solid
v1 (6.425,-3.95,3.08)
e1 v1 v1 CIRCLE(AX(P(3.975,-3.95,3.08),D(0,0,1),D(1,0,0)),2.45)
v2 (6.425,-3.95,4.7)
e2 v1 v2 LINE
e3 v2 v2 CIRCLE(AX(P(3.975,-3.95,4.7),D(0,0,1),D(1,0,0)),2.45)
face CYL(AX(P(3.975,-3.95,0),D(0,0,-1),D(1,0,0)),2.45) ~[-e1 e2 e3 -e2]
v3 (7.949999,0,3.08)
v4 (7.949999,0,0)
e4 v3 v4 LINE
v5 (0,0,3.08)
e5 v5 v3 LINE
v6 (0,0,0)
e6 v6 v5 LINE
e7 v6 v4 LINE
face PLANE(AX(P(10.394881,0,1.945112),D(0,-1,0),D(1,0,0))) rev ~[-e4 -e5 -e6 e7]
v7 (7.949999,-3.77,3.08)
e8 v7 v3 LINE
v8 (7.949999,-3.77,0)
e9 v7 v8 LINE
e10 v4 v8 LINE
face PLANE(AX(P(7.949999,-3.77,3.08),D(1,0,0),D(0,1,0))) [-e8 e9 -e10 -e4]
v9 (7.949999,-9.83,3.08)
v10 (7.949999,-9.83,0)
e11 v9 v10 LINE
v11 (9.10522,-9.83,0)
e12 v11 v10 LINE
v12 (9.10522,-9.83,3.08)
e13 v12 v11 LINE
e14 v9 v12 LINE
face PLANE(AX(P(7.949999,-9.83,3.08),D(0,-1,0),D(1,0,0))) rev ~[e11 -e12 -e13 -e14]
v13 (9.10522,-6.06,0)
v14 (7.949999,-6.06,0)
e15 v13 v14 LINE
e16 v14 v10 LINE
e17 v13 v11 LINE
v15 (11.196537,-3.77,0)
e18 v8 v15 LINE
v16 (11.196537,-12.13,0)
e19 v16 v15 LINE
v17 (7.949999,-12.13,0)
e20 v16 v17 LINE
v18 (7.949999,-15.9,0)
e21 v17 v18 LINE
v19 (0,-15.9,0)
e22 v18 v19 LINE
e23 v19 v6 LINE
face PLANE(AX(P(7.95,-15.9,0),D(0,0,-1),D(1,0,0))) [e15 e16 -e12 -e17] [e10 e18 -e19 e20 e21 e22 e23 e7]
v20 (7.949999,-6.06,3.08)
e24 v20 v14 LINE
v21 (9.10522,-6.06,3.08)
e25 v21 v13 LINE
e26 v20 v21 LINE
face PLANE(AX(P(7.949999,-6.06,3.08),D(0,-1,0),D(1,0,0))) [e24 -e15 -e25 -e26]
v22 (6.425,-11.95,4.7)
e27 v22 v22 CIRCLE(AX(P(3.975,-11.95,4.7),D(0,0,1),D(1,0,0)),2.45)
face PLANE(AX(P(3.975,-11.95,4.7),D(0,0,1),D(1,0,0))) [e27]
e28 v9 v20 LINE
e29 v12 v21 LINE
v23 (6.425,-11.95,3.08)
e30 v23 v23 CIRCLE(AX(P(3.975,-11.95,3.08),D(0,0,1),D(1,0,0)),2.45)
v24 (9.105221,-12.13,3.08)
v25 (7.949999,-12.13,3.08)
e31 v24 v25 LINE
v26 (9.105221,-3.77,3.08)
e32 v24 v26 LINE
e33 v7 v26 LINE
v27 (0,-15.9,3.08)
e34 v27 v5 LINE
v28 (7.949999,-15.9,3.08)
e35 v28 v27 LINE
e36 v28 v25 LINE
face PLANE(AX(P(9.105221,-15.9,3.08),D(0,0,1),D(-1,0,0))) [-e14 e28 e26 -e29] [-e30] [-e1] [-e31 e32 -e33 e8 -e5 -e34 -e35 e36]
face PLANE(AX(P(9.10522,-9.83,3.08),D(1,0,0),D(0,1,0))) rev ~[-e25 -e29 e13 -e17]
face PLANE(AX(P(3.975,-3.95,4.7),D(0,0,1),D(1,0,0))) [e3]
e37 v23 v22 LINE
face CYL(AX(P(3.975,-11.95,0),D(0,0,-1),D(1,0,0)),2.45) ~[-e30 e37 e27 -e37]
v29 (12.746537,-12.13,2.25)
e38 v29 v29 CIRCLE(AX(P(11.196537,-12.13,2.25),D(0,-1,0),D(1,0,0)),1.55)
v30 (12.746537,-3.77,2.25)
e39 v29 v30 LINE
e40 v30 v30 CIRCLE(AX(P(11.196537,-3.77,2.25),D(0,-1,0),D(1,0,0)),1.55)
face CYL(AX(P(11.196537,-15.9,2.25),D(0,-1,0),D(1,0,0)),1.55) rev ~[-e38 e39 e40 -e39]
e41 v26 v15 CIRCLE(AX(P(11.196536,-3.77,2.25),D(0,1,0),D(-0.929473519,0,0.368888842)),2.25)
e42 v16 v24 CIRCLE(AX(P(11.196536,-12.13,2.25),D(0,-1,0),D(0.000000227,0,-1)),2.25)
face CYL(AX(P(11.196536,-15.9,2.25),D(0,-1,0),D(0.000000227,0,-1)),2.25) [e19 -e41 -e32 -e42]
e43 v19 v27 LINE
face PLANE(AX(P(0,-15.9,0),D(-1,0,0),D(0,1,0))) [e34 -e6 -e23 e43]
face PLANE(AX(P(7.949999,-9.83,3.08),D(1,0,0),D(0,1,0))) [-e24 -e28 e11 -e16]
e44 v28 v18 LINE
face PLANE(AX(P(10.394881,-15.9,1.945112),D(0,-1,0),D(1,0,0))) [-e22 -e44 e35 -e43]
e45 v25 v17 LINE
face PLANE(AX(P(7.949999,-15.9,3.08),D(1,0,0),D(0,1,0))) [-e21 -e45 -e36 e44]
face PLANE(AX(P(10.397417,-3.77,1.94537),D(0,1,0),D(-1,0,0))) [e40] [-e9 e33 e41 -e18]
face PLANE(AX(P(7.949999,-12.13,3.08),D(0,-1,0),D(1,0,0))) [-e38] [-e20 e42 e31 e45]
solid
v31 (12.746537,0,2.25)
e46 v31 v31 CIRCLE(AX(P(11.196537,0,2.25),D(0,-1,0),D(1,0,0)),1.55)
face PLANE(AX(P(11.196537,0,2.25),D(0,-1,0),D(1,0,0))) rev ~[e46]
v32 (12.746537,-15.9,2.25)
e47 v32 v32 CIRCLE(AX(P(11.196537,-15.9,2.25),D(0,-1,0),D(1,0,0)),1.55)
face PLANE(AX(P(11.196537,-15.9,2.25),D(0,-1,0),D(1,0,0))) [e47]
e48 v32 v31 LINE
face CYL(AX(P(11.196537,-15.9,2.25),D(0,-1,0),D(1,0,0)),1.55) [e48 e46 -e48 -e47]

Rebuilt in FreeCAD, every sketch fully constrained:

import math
import FreeCAD as App
import Part
import Sketcher
from FreeCAD import Vector
Q = App.Units.Quantity


def add_polygon(sketch, points):
    """Adds a closed chain of lines whose ends are joined by coincident constraints."""
    first, n = sketch.GeometryCount, len(points)
    for a, b in zip(points, points[1:] + points[:1]):
        sketch.addGeometry(Part.LineSegment(App.Vector(*a, 0), App.Vector(*b, 0)), False)
    for i in range(n):
        sketch.addConstraint(Sketcher.Constraint("Coincident", first + i, 2, first + (i + 1) % n, 1))

doc = App.newDocument("Part")
body = doc.addObject("PartDesign::Body", "Body")

# Sketch on XY plane
sketch1 = body.newObject("Sketcher::SketchObject", "Sketch")
sketch1.AttachmentSupport = (doc.getObject("XY_Plane"), [""])
sketch1.MapMode = "FlatFace"
add_polygon(sketch1, [(0, 0), (0, -15.9), (8, -15.9), (8, 0)])  # lines 0-3
sketch1.addGeometry(Part.Circle(Vector(4, -11.9, 0), Vector(0, 0, 1), 2.5), False)  # 4
sketch1.addGeometry(Part.Circle(Vector(4, -4, 0), Vector(0, 0, 1), 2.5), False)  # 5
sketch1.addConstraint(Sketcher.Constraint("Vertical", 0))
sketch1.addConstraint(Sketcher.Constraint("Horizontal", 1))
sketch1.addConstraint(Sketcher.Constraint("Vertical", 2))
sketch1.addConstraint(Sketcher.Constraint("Horizontal", 3))
sketch1.addConstraint(Sketcher.Constraint("Coincident", 3, 2, -1, 1))
sketch1.addConstraint(Sketcher.Constraint("Equal", 4, 5))
sketch1.addConstraint(Sketcher.Constraint("Vertical", 4, 3, 5, 3))
sketch1.addConstraint(Sketcher.Constraint("Diameter", 4, Q("4.9 mm")))
sketch1.addConstraint(Sketcher.Constraint("DistanceY", 0, 2, 0, 1, Q("15.9 mm")))
sketch1.addConstraint(Sketcher.Constraint("DistanceY", 4, 3, 5, 3, Q("8 mm")))
sketch1.addConstraint(Sketcher.Constraint("DistanceX", 1, 1, 1, 2, Q("7.95 mm")))
sketch1.addConstraint(Sketcher.Constraint("DistanceY", 4, 3, -1, 1, Q("11.95 mm")))
sketch1.addConstraint(Sketcher.Constraint("DistanceX", -1, 1, 4, 3, Q("3.975 mm")))
pad1 = body.newObject("PartDesign::Pad", "Pad")
pad1.Profile = sketch1
pad1.Length = 3.08

# Sketch on XY plane
sketch2 = body.newObject("Sketcher::SketchObject", "Sketch001")
sketch2.AttachmentSupport = (doc.getObject("XY_Plane"), [""])
sketch2.MapMode = "FlatFace"
sketch2.addGeometry(Part.Circle(Vector(4, -11.9, 0), Vector(0, 0, 1), 2.5), False)
sketch2.addGeometry(Part.Circle(Vector(4, -4, 0), Vector(0, 0, 1), 2.5), False)
sketch2.addConstraint(Sketcher.Constraint("Equal", 0, 1))
sketch2.addConstraint(Sketcher.Constraint("Vertical", 0, 3, 1, 3))
sketch2.addConstraint(Sketcher.Constraint("Diameter", 0, Q("4.9 mm")))
sketch2.addConstraint(Sketcher.Constraint("DistanceY", 0, 3, 1, 3, Q("8 mm")))
sketch2.addConstraint(Sketcher.Constraint("DistanceY", 0, 3, -1, 1, Q("11.95 mm")))
sketch2.addConstraint(Sketcher.Constraint("DistanceX", -1, 1, 0, 3, Q("3.975 mm")))
pad2 = body.newObject("PartDesign::Pad", "Pad001")
pad2.Profile = sketch2
pad2.Length = 4.7

# Sketch on XZ plane
sketch3 = body.newObject("Sketcher::SketchObject", "Sketch002")
sketch3.AttachmentSupport = (doc.getObject("XZ_Plane"), [""])
sketch3.MapMode = "FlatFace"
sketch3.AttachmentOffset = App.Placement(Vector(0, 0, 15.9), App.Rotation())
sketch3.addGeometry(Part.LineSegment(Vector(8, 0, 0), Vector(11.2, 0, 0)), False)
sketch3.addGeometry(Part.ArcOfCircle(Part.Circle(Vector(11.2, 2.3, 0), Vector(0, 0, 1), 2.3), math.radians(-90), math.radians(158)), False)
sketch3.addGeometry(Part.LineSegment(Vector(9.1, 3.1, 0), Vector(8, 3.1, 0)), False)
sketch3.addGeometry(Part.LineSegment(Vector(8, 3.1, 0), Vector(8, 0, 0)), False)
sketch3.addGeometry(Part.Circle(Vector(11.2, 2.2, 0), Vector(0, 0, 1), 1.6), False)
sketch3.addConstraint(Sketcher.Constraint("Tangent", 0, 2, 1, 1))
sketch3.addConstraint(Sketcher.Constraint("Coincident", 1, 2, 2, 1))
sketch3.addConstraint(Sketcher.Constraint("Coincident", 2, 2, 3, 1))
sketch3.addConstraint(Sketcher.Constraint("Coincident", 3, 2, 0, 1))
sketch3.addConstraint(Sketcher.Constraint("Horizontal", 0))
sketch3.addConstraint(Sketcher.Constraint("Horizontal", 2))
sketch3.addConstraint(Sketcher.Constraint("Vertical", 3))
sketch3.addConstraint(Sketcher.Constraint("Coincident", 4, 3, 1, 3))
sketch3.addConstraint(Sketcher.Constraint("PointOnObject", 0, 2, -1))
sketch3.addConstraint(Sketcher.Constraint("Diameter", 4, Q("3.1 mm")))
sketch3.addConstraint(Sketcher.Constraint("Radius", 1, Q("2.25 mm")))
sketch3.addConstraint(Sketcher.Constraint("DistanceY", 3, 2, 3, 1, Q("3.08 mm")))
sketch3.addConstraint(Sketcher.Constraint("DistanceX", -1, 1, 2, 2, Q("7.95 mm")))
sketch3.addConstraint(Sketcher.Constraint("DistanceX", 2, 2, 2, 1, Q("1.155221 mm")))
pad3 = body.newObject("PartDesign::Pad", "Pad002")
pad3.Profile = sketch3
pad3.Length = 15.9
pad3.Reversed = True

# Sketch on XY plane
sketch4 = body.newObject("Sketcher::SketchObject", "Sketch003")
sketch4.AttachmentSupport = (doc.getObject("XY_Plane"), [""])
sketch4.MapMode = "FlatFace"
sketch4.AttachmentOffset = App.Placement(Vector(0, 0, 3.08), App.Rotation())
add_polygon(sketch4, [(7.9, -12.1), (7.9, -15.9), (9.1, -15.9), (9.1, -12.1)])  # lines 0-3
add_polygon(sketch4, [(7.9, -6.1), (7.9, -9.8), (9.1, -9.8), (9.1, -6.1)])  # lines 4-7
add_polygon(sketch4, [(7.9, 0), (7.9, -3.8), (9.1, -3.8), (9.1, 0)])  # lines 8-11
sketch4.addConstraint(Sketcher.Constraint("Vertical", 0))
sketch4.addConstraint(Sketcher.Constraint("Horizontal", 1))
sketch4.addConstraint(Sketcher.Constraint("Vertical", 2))
sketch4.addConstraint(Sketcher.Constraint("Horizontal", 3))
sketch4.addConstraint(Sketcher.Constraint("Vertical", 4))
sketch4.addConstraint(Sketcher.Constraint("Horizontal", 5))
sketch4.addConstraint(Sketcher.Constraint("Vertical", 6))
sketch4.addConstraint(Sketcher.Constraint("Horizontal", 7))
sketch4.addConstraint(Sketcher.Constraint("Vertical", 8))
sketch4.addConstraint(Sketcher.Constraint("Horizontal", 9))
sketch4.addConstraint(Sketcher.Constraint("Vertical", 10))
sketch4.addConstraint(Sketcher.Constraint("Horizontal", 11))
sketch4.addConstraint(Sketcher.Constraint("PointOnObject", 10, 2, -1))
sketch4.addConstraint(Sketcher.Constraint("Vertical", 3, 2, 4, 2))
sketch4.addConstraint(Sketcher.Constraint("Vertical", 2, 2, 5, 2))
sketch4.addConstraint(Sketcher.Constraint("Vertical", 7, 2, 8, 2))
sketch4.addConstraint(Sketcher.Constraint("Vertical", 6, 2, 9, 2))
sketch4.addConstraint(Sketcher.Constraint("Equal", 2, 4))
sketch4.addConstraint(Sketcher.Constraint("Equal", 6, 8))
sketch4.addConstraint(Sketcher.Constraint("DistanceY", 0, 2, 0, 1, Q("3.77 mm")))
sketch4.addConstraint(Sketcher.Constraint("DistanceY", 0, 2, -1, 1, Q("15.9 mm")))
sketch4.addConstraint(Sketcher.Constraint("DistanceY", 3, 2, 4, 2, Q("2.3 mm")))
sketch4.addConstraint(Sketcher.Constraint("DistanceX", -1, 1, 0, 2, Q("7.949999 mm")))
sketch4.addConstraint(Sketcher.Constraint("DistanceX", 1, 1, 1, 2, Q("1.155221 mm")))
pocket1 = body.newObject("PartDesign::Pocket", "Pocket")
pocket1.Profile = sketch4
pocket1.Length = 25

# Sketch on XZ plane
sketch5 = body.newObject("Sketcher::SketchObject", "Sketch004")
sketch5.AttachmentSupport = (doc.getObject("XZ_Plane"), [""])
sketch5.MapMode = "FlatFace"
sketch5.AttachmentOffset = App.Placement(Vector(0, 0, 15.9), App.Rotation())
sketch5.addGeometry(Part.LineSegment(Vector(8, 0, 0), Vector(11.2, 0, 0)), False)
sketch5.addGeometry(Part.ArcOfCircle(Part.Circle(Vector(11.2, 2.3, 0), Vector(0, 0, 1), 2.3), math.radians(-90), math.radians(158)), False)
sketch5.addGeometry(Part.LineSegment(Vector(9.1, 3.1, 0), Vector(8, 3.1, 0)), False)
sketch5.addGeometry(Part.LineSegment(Vector(8, 3.1, 0), Vector(8, 0, 0)), False)
sketch5.addGeometry(Part.Circle(Vector(11.2, 2.2, 0), Vector(0, 0, 1), 1.6), False)
sketch5.addConstraint(Sketcher.Constraint("Tangent", 0, 2, 1, 1))
sketch5.addConstraint(Sketcher.Constraint("Coincident", 1, 2, 2, 1))
sketch5.addConstraint(Sketcher.Constraint("Coincident", 2, 2, 3, 1))
sketch5.addConstraint(Sketcher.Constraint("Coincident", 3, 2, 0, 1))
sketch5.addConstraint(Sketcher.Constraint("Horizontal", 0))
sketch5.addConstraint(Sketcher.Constraint("Horizontal", 2))
sketch5.addConstraint(Sketcher.Constraint("Vertical", 3))
sketch5.addConstraint(Sketcher.Constraint("Coincident", 4, 3, 1, 3))
sketch5.addConstraint(Sketcher.Constraint("PointOnObject", 0, 2, -1))
sketch5.addConstraint(Sketcher.Constraint("Diameter", 4, Q("3.1 mm")))
sketch5.addConstraint(Sketcher.Constraint("Radius", 1, Q("2.25 mm")))
sketch5.addConstraint(Sketcher.Constraint("DistanceY", 3, 2, 3, 1, Q("3.08 mm")))
sketch5.addConstraint(Sketcher.Constraint("DistanceX", 2, 2, 2, 1, Q("1.155 mm")))
sketch5.addConstraint(Sketcher.Constraint("DistanceX", -1, 1, 1, 2, Q("9.105221 mm")))
pocket2 = body.newObject("PartDesign::Pocket", "Pocket001")
pocket2.Profile = sketch5
pocket2.Length = 3.77

# Sketch on XZ plane
sketch6 = body.newObject("Sketcher::SketchObject", "Sketch005")
sketch6.AttachmentSupport = (doc.getObject("XZ_Plane"), [""])
sketch6.MapMode = "FlatFace"
sketch6.addGeometry(Part.LineSegment(Vector(8, 3.1, 0), Vector(9.1, 3.1, 0)), False)
sketch6.addGeometry(Part.ArcOfCircle(Part.Circle(Vector(11.2, 2.3, 0), Vector(0, 0, 1), 2.3), math.radians(-90), math.radians(158)), False)
sketch6.addGeometry(Part.LineSegment(Vector(11.2, 0, 0), Vector(8, 0, 0)), False)
sketch6.addGeometry(Part.LineSegment(Vector(8, 0, 0), Vector(8, 3.1, 0)), False)
sketch6.addGeometry(Part.Circle(Vector(11.2, 2.2, 0), Vector(0, 0, 1), 1.6), False)
sketch6.addConstraint(Sketcher.Constraint("Coincident", 0, 2, 1, 2))
sketch6.addConstraint(Sketcher.Constraint("Tangent", 1, 1, 2, 1))
sketch6.addConstraint(Sketcher.Constraint("Coincident", 2, 2, 3, 1))
sketch6.addConstraint(Sketcher.Constraint("Coincident", 3, 2, 0, 1))
sketch6.addConstraint(Sketcher.Constraint("Horizontal", 0))
sketch6.addConstraint(Sketcher.Constraint("Horizontal", 2))
sketch6.addConstraint(Sketcher.Constraint("Vertical", 3))
sketch6.addConstraint(Sketcher.Constraint("Coincident", 4, 3, 1, 3))
sketch6.addConstraint(Sketcher.Constraint("PointOnObject", 1, 1, -1))
sketch6.addConstraint(Sketcher.Constraint("Diameter", 4, Q("3.1 mm")))
sketch6.addConstraint(Sketcher.Constraint("Radius", 1, Q("2.25 mm")))
sketch6.addConstraint(Sketcher.Constraint("DistanceX", 0, 1, 0, 2, Q("1.15 mm")))
sketch6.addConstraint(Sketcher.Constraint("DistanceY", 3, 1, 3, 2, Q("3.08 mm")))
sketch6.addConstraint(Sketcher.Constraint("DistanceX", -1, 1, 0, 2, Q("9.105221 mm")))
pocket3 = body.newObject("PartDesign::Pocket", "Pocket002")
pocket3.Profile = sketch6
pocket3.Length = 3.77
pocket3.Reversed = True
body2 = doc.addObject("PartDesign::Body", "Body001")

# Sketch on XZ plane
sketch7 = body2.newObject("Sketcher::SketchObject", "Sketch006")
sketch7.AttachmentSupport = (doc.getObject("XZ_Plane001"), [""])
sketch7.MapMode = "FlatFace"
sketch7.AttachmentOffset = App.Placement(Vector(0, 0, 15.9), App.Rotation())
sketch7.addGeometry(Part.Circle(Vector(11.2, 2.2, 0), Vector(0, 0, 1), 1.6), False)
sketch7.addConstraint(Sketcher.Constraint("Diameter", 0, Q("3.1 mm")))
sketch7.addConstraint(Sketcher.Constraint("DistanceY", -1, 1, 0, 3, Q("2.25 mm")))
sketch7.addConstraint(Sketcher.Constraint("DistanceX", -1, 1, 0, 3, Q("11.196537 mm")))
pad4 = body2.newObject("PartDesign::Pad", "Pad003")
pad4.Profile = sketch7
pad4.Length = 15.9
pad4.Reversed = True

doc.recompute()
